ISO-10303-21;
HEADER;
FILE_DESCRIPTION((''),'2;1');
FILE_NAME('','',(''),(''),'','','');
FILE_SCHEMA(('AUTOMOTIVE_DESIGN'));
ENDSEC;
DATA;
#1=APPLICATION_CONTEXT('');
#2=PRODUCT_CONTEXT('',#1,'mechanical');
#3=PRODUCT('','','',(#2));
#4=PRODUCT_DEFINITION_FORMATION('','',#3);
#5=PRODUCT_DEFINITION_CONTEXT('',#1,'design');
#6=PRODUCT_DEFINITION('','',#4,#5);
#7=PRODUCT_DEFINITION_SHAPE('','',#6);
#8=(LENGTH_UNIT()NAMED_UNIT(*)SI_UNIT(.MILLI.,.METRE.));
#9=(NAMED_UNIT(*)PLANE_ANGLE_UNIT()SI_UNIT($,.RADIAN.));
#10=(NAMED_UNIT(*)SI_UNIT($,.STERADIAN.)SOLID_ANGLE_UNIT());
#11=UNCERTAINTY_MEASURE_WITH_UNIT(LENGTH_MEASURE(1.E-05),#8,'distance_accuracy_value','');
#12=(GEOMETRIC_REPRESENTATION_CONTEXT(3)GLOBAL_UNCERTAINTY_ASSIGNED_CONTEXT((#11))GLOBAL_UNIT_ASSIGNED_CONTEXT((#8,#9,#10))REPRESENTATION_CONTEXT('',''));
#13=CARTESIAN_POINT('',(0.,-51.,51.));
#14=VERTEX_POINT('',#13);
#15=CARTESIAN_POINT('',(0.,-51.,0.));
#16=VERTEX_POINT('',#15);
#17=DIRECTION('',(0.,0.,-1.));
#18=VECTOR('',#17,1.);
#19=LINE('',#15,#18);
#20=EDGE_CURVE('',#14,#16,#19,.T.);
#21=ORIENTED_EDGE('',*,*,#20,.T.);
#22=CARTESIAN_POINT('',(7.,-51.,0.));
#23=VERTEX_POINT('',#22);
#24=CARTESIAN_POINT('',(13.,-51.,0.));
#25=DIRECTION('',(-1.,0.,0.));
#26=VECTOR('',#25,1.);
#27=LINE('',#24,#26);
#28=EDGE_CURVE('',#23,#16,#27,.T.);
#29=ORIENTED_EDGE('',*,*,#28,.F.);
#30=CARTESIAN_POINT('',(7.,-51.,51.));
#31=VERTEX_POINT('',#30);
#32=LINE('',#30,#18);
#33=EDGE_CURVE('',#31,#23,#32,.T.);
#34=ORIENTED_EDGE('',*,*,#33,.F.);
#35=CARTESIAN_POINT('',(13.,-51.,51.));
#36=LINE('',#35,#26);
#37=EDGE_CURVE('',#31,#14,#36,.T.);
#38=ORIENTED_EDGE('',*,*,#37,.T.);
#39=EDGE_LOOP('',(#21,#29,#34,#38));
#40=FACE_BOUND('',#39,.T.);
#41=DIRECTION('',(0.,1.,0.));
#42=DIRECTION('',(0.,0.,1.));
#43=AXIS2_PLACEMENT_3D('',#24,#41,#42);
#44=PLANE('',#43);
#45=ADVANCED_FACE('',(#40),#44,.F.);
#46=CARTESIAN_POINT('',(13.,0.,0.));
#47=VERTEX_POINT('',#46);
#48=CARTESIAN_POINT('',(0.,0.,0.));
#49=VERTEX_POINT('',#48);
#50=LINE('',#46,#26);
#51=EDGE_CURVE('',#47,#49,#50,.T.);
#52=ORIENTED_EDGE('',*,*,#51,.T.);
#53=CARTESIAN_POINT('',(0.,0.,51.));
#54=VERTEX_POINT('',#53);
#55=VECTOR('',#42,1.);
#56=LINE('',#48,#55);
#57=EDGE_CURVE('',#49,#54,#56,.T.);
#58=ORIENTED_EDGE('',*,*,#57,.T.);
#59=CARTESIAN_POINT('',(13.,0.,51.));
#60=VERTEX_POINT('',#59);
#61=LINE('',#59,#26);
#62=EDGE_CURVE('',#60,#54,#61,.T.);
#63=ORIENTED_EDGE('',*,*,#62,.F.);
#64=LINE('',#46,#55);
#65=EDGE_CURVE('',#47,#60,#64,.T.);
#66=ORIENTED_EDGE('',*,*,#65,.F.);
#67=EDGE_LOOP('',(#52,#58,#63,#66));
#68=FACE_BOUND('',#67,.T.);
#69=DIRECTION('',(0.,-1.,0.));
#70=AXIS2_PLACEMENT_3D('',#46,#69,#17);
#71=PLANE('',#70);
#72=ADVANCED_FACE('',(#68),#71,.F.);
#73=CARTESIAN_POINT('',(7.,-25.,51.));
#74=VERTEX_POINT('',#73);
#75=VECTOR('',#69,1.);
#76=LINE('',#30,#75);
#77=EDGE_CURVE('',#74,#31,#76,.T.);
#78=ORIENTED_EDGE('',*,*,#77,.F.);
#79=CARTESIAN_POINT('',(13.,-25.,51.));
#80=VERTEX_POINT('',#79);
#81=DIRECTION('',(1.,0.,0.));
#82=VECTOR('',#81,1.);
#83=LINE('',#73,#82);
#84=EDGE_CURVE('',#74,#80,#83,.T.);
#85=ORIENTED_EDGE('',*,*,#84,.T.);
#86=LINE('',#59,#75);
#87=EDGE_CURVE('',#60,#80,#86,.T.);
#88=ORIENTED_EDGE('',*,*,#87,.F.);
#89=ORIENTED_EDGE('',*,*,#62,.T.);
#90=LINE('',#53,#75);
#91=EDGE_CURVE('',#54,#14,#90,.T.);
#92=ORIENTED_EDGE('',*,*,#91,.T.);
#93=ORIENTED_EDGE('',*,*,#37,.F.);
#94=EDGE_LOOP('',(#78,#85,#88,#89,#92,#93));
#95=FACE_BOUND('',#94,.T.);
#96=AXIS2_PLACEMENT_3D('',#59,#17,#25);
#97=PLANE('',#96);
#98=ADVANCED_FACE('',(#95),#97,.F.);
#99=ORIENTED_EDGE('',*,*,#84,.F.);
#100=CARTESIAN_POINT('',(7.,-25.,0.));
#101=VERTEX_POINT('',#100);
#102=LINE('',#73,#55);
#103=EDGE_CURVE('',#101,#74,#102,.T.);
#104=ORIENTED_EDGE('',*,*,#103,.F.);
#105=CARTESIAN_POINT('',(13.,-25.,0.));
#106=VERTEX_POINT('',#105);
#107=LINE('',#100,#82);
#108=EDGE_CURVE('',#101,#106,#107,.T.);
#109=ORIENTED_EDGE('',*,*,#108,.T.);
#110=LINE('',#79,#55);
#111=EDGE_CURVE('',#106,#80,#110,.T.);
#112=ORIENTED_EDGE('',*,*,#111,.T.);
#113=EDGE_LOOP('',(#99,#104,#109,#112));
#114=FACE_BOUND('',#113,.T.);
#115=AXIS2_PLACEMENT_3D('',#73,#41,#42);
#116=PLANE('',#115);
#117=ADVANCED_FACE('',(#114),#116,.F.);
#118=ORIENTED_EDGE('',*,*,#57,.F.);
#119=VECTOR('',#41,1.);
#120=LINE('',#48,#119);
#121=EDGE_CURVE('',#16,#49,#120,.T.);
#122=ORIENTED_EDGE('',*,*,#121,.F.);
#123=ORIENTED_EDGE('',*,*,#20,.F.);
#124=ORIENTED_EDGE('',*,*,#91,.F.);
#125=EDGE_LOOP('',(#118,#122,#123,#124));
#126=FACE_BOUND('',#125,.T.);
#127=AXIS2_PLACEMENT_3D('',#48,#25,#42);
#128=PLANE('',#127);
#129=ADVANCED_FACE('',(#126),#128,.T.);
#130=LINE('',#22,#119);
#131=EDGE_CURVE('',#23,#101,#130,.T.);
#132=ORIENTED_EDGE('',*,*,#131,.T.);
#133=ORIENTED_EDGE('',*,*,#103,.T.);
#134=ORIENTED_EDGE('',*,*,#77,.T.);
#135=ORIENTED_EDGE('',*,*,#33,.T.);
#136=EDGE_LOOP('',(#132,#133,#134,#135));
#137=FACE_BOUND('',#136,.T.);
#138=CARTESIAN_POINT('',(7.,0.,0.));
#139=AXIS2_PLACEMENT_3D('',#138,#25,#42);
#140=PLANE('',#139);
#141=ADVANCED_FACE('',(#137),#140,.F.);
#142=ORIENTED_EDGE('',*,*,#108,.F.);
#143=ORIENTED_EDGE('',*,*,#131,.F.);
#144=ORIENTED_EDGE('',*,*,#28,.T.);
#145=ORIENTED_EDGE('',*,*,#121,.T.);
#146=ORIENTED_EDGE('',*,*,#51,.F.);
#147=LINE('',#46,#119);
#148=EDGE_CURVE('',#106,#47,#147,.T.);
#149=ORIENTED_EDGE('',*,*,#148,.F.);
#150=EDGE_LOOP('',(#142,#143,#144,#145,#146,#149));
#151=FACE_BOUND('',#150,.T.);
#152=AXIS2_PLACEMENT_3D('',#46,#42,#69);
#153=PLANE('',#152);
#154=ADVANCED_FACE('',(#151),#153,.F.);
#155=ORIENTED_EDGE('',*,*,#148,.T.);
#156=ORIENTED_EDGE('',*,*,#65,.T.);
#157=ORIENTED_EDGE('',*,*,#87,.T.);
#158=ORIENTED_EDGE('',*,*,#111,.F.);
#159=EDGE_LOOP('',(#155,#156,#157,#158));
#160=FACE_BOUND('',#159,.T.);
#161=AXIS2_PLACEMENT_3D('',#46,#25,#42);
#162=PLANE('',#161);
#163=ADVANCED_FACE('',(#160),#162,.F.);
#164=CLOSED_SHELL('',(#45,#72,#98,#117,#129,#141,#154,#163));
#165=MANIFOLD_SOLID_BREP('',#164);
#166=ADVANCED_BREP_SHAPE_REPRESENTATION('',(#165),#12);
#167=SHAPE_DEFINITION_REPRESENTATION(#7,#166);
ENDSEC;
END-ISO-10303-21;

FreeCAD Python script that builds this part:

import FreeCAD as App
import Part
import Sketcher

V = App.Vector
Q = App.Units.Quantity


def add_polygon(sketch, points):
    """Adds a closed chain of lines whose ends are joined by coincident constraints."""
    first, n = sketch.GeometryCount, len(points)
    for a, b in zip(points, points[1:] + points[:1]):
        sketch.addGeometry(Part.LineSegment(App.Vector(*a, 0), App.Vector(*b, 0)), False)
    for i in range(n):
        sketch.addConstraint(Sketcher.Constraint("Coincident", first + i, 2, first + (i + 1) % n, 1))

doc = App.newDocument("Part")
body = doc.addObject("PartDesign::Body", "Body")

# Sketch on YZ plane
sketch1 = body.newObject("Sketcher::SketchObject", "Sketch")
sketch1.AttachmentSupport = (doc.getObject("YZ_Plane"), [""])
sketch1.MapMode = "FlatFace"
add_polygon(sketch1, [(0, 51), (-51, 51), (-51, 0), (0, 0)])  # lines 0-3
sketch1.addConstraint(Sketcher.Constraint("Horizontal", 0))
sketch1.addConstraint(Sketcher.Constraint("Vertical", 1))
sketch1.addConstraint(Sketcher.Constraint("Horizontal", 2))
sketch1.addConstraint(Sketcher.Constraint("Vertical", 3))
sketch1.addConstraint(Sketcher.Constraint("Coincident", 2, 2, -1, 1))
sketch1.addConstraint(Sketcher.Constraint("Equal", 2, 1))
sketch1.addConstraint(Sketcher.Constraint("DistanceX", 0, 2, 0, 1, Q("51 mm")))
pad1 = body.newObject("PartDesign::Pad", "Pad")
pad1.Profile = sketch1
pad1.Length = 13

# Sketch on YZ plane
sketch2 = body.newObject("Sketcher::SketchObject", "Sketch001")
sketch2.AttachmentSupport = (doc.getObject("YZ_Plane"), [""])
sketch2.MapMode = "FlatFace"
sketch2.AttachmentOffset = App.Placement(V(0, 0, 13), App.Rotation())
add_polygon(sketch2, [(-25, 51), (-51, 51), (-51, 0), (-25, 0)])  # lines 0-3
sketch2.addConstraint(Sketcher.Constraint("Horizontal", 0))
sketch2.addConstraint(Sketcher.Constraint("Vertical", 1))
sketch2.addConstraint(Sketcher.Constraint("Horizontal", 2))
sketch2.addConstraint(Sketcher.Constraint("Vertical", 3))
sketch2.addConstraint(Sketcher.Constraint("PointOnObject", 1, 2, -1))
sketch2.addConstraint(Sketcher.Constraint("DistanceX", 0, 2, 0, 1, Q("26 mm")))
sketch2.addConstraint(Sketcher.Constraint("DistanceY", 1, 2, 1, 1, Q("51 mm")))
sketch2.addConstraint(Sketcher.Constraint("DistanceX", 0, 2, -1, 1, Q("51 mm")))
pocket1 = body.newObject("PartDesign::Pocket", "Pocket")
pocket1.Profile = sketch2
pocket1.Length = 6

doc.recompute()
